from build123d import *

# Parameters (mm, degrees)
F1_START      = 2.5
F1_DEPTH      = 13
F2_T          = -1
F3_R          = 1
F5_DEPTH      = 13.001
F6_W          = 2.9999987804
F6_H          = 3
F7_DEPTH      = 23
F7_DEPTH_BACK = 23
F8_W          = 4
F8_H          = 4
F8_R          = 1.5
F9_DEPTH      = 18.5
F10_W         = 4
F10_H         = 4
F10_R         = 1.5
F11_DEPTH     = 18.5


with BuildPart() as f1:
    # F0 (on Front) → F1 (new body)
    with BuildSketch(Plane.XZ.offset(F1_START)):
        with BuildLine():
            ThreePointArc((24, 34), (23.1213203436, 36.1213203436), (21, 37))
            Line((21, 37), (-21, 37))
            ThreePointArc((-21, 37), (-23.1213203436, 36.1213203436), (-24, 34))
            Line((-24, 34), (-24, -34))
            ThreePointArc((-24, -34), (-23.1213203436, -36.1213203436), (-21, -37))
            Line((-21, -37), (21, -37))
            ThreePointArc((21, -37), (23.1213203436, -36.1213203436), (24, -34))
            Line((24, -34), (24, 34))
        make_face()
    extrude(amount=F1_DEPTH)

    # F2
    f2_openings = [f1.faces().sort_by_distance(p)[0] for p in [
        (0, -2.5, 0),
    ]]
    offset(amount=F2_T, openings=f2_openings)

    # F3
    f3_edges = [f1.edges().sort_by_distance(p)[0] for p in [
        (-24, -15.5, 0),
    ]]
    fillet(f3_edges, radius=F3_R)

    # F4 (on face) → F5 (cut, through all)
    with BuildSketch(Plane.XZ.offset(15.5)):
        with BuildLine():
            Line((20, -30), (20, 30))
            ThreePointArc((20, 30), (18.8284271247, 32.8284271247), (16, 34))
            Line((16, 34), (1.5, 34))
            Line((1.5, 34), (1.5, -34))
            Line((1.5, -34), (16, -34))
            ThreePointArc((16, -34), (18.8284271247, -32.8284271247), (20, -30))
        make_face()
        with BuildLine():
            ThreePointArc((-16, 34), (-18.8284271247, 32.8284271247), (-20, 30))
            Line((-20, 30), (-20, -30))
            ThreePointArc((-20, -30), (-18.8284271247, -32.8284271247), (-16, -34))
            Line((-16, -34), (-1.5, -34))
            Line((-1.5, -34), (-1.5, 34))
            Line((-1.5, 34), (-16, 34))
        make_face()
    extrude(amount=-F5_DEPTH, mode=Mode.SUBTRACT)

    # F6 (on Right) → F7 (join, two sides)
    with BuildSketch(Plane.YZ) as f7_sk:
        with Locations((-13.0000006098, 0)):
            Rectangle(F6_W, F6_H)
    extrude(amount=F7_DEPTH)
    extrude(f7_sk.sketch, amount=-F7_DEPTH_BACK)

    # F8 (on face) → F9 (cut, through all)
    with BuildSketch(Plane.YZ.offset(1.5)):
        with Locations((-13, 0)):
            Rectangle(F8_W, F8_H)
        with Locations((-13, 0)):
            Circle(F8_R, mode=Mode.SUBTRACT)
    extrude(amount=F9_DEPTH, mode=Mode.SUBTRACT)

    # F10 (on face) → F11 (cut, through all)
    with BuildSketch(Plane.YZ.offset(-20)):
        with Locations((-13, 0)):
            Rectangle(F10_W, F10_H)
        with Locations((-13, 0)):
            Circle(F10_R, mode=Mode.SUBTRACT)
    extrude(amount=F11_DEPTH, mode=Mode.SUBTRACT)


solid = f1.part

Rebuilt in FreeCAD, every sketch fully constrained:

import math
import FreeCAD as App
import Part
import Sketcher


def edges_at(feature, points):
    """Names of the edges that pass closest to the given points."""
    edges = feature.Shape.Edges
    near = lambda p: min(range(len(edges)), key=lambda i: edges[i].distToShape(Part.Vertex(*p))[0])
    return sorted({f"Edge{near(p) + 1}" for p in points})


def faces_at(feature, points):
    """Names of the faces that lie closest to the given points."""
    faces = feature.Shape.Faces
    near = lambda p: min(range(len(faces)), key=lambda i: faces[i].distToShape(Part.Vertex(*p))[0])
    return sorted({f"Face{near(p) + 1}" for p in points})

doc = App.newDocument("Part")
body = doc.addObject("PartDesign::Body", "Body")

# Sketch on XZ plane
sketch1 = body.newObject("Sketcher::SketchObject", "Sketch")
sketch1.AttachmentSupport = (doc.getObject("XZ_Plane"), [""])
sketch1.MapMode = "FlatFace"
sketch1.AttachmentOffset = App.Placement(App.Vector(0, 0, 2.5), App.Rotation())
sketch1.addGeometry([
    Part.ArcOfCircle(Part.Circle(App.Vector(21, 34, 0), App.Vector(0, 0, 1), 3), math.radians(0), math.radians(90)),  # 0
    Part.LineSegment(App.Vector(21, 37, 0), App.Vector(-21, 37, 0)),  # 1
    Part.ArcOfCircle(Part.Circle(App.Vector(-21, 34, 0), App.Vector(0, 0, 1), 3), math.radians(90), math.radians(180)),  # 2
    Part.LineSegment(App.Vector(-24, 34, 0), App.Vector(-24, -34, 0)),  # 3
    Part.ArcOfCircle(Part.Circle(App.Vector(-21, -34, 0), App.Vector(0, 0, 1), 3), math.radians(180), math.radians(270)),  # 4
    Part.LineSegment(App.Vector(-21, -37, 0), App.Vector(21, -37, 0)),  # 5
    Part.ArcOfCircle(Part.Circle(App.Vector(21, -34, 0), App.Vector(0, 0, 1), 3), math.radians(-90), math.radians(0)),  # 6
    Part.LineSegment(App.Vector(24, -34, 0), App.Vector(24, 34, 0)),  # 7
], False)
sketch1.addConstraint([
    Sketcher.Constraint("Tangent", 0, 2, 1, 1),
    Sketcher.Constraint("Tangent", 1, 2, 2, 1),
    Sketcher.Constraint("Tangent", 2, 2, 3, 1),
    Sketcher.Constraint("Tangent", 3, 2, 4, 1),
    Sketcher.Constraint("Tangent", 4, 2, 5, 1),
    Sketcher.Constraint("Tangent", 5, 2, 6, 1),
    Sketcher.Constraint("Tangent", 6, 2, 7, 1),
    Sketcher.Constraint("Tangent", 7, 2, 0, 1),
    Sketcher.Constraint("Horizontal", 1),
    Sketcher.Constraint("Vertical", 3),
    Sketcher.Constraint("Horizontal", 5),
    Sketcher.Constraint("Vertical", 7),
    Sketcher.Constraint("Equal", 0, 2),
    Sketcher.Constraint("Equal", 2, 4),
    Sketcher.Constraint("Equal", 4, 6),
    Sketcher.Constraint("Symmetric", 0, 3, 4, 3, -1, 1),
    Sketcher.Constraint("Radius", 0, 3.0),
    Sketcher.Constraint("DistanceX", 1, 2, 1, 1, 42.0),
    Sketcher.Constraint("DistanceY", 3, 2, 3, 1, 68.0),
])
pad1 = body.newObject("PartDesign::Pad", "Pad")
pad1.Profile = sketch1
pad1.Length = 13
doc.recompute()

thickness = body.newObject("PartDesign::Thickness", "Thickness")
thickness.Base = (pad1, faces_at(pad1, [(0, -2.5, 0)]))
thickness.Value = 1
thickness.Reversed = True
thickness.Join = "Arc"
doc.recompute()

fillet = body.newObject("PartDesign::Fillet", "Fillet")
fillet.Base = (thickness, edges_at(thickness, [(-24, -15.5, 0)]))
fillet.Radius = 1

# Sketch on XZ plane
sketch2 = body.newObject("Sketcher::SketchObject", "Sketch001")
sketch2.AttachmentSupport = (doc.getObject("XZ_Plane"), [""])
sketch2.MapMode = "FlatFace"
sketch2.AttachmentOffset = App.Placement(App.Vector(0, 0, 15.5), App.Rotation())
sketch2.addGeometry([
    Part.LineSegment(App.Vector(20, -30, 0), App.Vector(20, 30, 0)),  # 0
    Part.ArcOfCircle(Part.Circle(App.Vector(16, 30, 0), App.Vector(0, 0, 1), 4), math.radians(0), math.radians(90)),  # 1
    Part.LineSegment(App.Vector(16, 34, 0), App.Vector(1.5, 34, 0)),  # 2
    Part.LineSegment(App.Vector(1.5, 34, 0), App.Vector(1.5, -34, 0)),  # 3
    Part.LineSegment(App.Vector(1.5, -34, 0), App.Vector(16, -34, 0)),  # 4
    Part.ArcOfCircle(Part.Circle(App.Vector(16, -30, 0), App.Vector(0, 0, 1), 4), math.radians(-90), math.radians(0)),  # 5
    Part.ArcOfCircle(Part.Circle(App.Vector(-16, 30, 0), App.Vector(0, 0, 1), 4), math.radians(90), math.radians(180)),  # 6
    Part.LineSegment(App.Vector(-20, 30, 0), App.Vector(-20, -30, 0)),  # 7
    Part.ArcOfCircle(Part.Circle(App.Vector(-16, -30, 0), App.Vector(0, 0, 1), 4), math.radians(180), math.radians(270)),  # 8
    Part.LineSegment(App.Vector(-16, -34, 0), App.Vector(-1.5, -34, 0)),  # 9
    Part.LineSegment(App.Vector(-1.5, -34, 0), App.Vector(-1.5, 34, 0)),  # 10
    Part.LineSegment(App.Vector(-1.5, 34, 0), App.Vector(-16, 34, 0)),  # 11
], False)
sketch2.addConstraint([
    Sketcher.Constraint("Tangent", 0, 2, 1, 1),
    Sketcher.Constraint("Tangent", 1, 2, 2, 1),
    Sketcher.Constraint("Coincident", 2, 2, 3, 1),
    Sketcher.Constraint("Coincident", 3, 2, 4, 1),
    Sketcher.Constraint("Tangent", 4, 2, 5, 1),
    Sketcher.Constraint("Tangent", 5, 2, 0, 1),
    Sketcher.Constraint("Tangent", 6, 2, 7, 1),
    Sketcher.Constraint("Tangent", 7, 2, 8, 1),
    Sketcher.Constraint("Tangent", 8, 2, 9, 1),
    Sketcher.Constraint("Coincident", 9, 2, 10, 1),
    Sketcher.Constraint("Coincident", 10, 2, 11, 1),
    Sketcher.Constraint("Tangent", 11, 2, 6, 1),
    Sketcher.Constraint("Vertical", 0),
    Sketcher.Constraint("Horizontal", 2),
    Sketcher.Constraint("Vertical", 3),
    Sketcher.Constraint("Horizontal", 4),
    Sketcher.Constraint("Vertical", 7),
    Sketcher.Constraint("Horizontal", 9),
    Sketcher.Constraint("Vertical", 10),
    Sketcher.Constraint("Horizontal", 11),
    Sketcher.Constraint("Equal", 1, 5),
    Sketcher.Constraint("Equal", 5, 6),
    Sketcher.Constraint("Equal", 6, 8),
    Sketcher.Constraint("Symmetric", 5, 3, 6, 3, -1, 1),
    Sketcher.Constraint("Symmetric", 2, 2, 9, 2, -1, 1),
    Sketcher.Constraint("Horizontal", 1, 3, 6, 3),
    Sketcher.Constraint("Radius", 1, 4.0),
    Sketcher.Constraint("DistanceY", 0, 1, 0, 2, 60.0),
    Sketcher.Constraint("DistanceX", 2, 2, 2, 1, 14.5),
    Sketcher.Constraint("DistanceX", -1, 1, 1, 3, 16.0),
])
pocket1 = body.newObject("PartDesign::Pocket", "Pocket")
pocket1.Profile = sketch2
pocket1.Type = "ThroughAll"

# Sketch on YZ plane
sketch3 = body.newObject("Sketcher::SketchObject", "Sketch002")
sketch3.AttachmentSupport = (doc.getObject("YZ_Plane"), [""])
sketch3.MapMode = "FlatFace"
sketch3.addGeometry([
    Part.LineSegment(App.Vector(-14.5, 1.5, 0), App.Vector(-14.5, -1.5, 0)),
    Part.LineSegment(App.Vector(-14.5, -1.5, 0), App.Vector(-11.500001, -1.5, 0)),
    Part.LineSegment(App.Vector(-11.500001, -1.5, 0), App.Vector(-11.500001, 1.5, 0)),
    Part.LineSegment(App.Vector(-11.500001, 1.5, 0), App.Vector(-14.5, 1.5, 0)),
], False)
sketch3.addConstraint([
    Sketcher.Constraint("Coincident", 0, 2, 1, 1),
    Sketcher.Constraint("Coincident", 1, 2, 2, 1),
    Sketcher.Constraint("Coincident", 2, 2, 3, 1),
    Sketcher.Constraint("Coincident", 3, 2, 0, 1),
    Sketcher.Constraint("Vertical", 0),
    Sketcher.Constraint("Horizontal", 1),
    Sketcher.Constraint("Vertical", 2),
    Sketcher.Constraint("Horizontal", 3),
    Sketcher.Constraint("Equal", 3, 0),
    Sketcher.Constraint("DistanceX", 1, 1, 1, 2, 2.999999),
    Sketcher.Constraint("DistanceX", 0, 2, -1, 1, 14.5),
    Sketcher.Constraint("DistanceY", 0, 2, -1, 1, 1.5),
])
pad2 = body.newObject("PartDesign::Pad", "Pad001")
pad2.Profile = sketch3
pad2.Type = "TwoLengths"
pad2.Length = 23
pad2.Length2 = 23

# Sketch on YZ plane
sketch4 = body.newObject("Sketcher::SketchObject", "Sketch003")
sketch4.AttachmentSupport = (doc.getObject("YZ_Plane"), [""])
sketch4.MapMode = "FlatFace"
sketch4.AttachmentOffset = App.Placement(App.Vector(0, 0, 1.5), App.Rotation())
sketch4.addGeometry([
    Part.LineSegment(App.Vector(-15, 2, 0), App.Vector(-15, -2, 0)),  # 0
    Part.LineSegment(App.Vector(-15, -2, 0), App.Vector(-11, -2, 0)),  # 1
    Part.LineSegment(App.Vector(-11, -2, 0), App.Vector(-11, 2, 0)),  # 2
    Part.LineSegment(App.Vector(-11, 2, 0), App.Vector(-15, 2, 0)),  # 3
    Part.Circle(App.Vector(-13, 0, 0), App.Vector(0, 0, 1), 1.5),  # 4
], False)
sketch4.addConstraint([
    Sketcher.Constraint("Coincident", 0, 2, 1, 1),
    Sketcher.Constraint("Coincident", 1, 2, 2, 1),
    Sketcher.Constraint("Coincident", 2, 2, 3, 1),
    Sketcher.Constraint("Coincident", 3, 2, 0, 1),
    Sketcher.Constraint("Vertical", 0),
    Sketcher.Constraint("Horizontal", 1),
    Sketcher.Constraint("Vertical", 2),
    Sketcher.Constraint("Horizontal", 3),
    Sketcher.Constraint("PointOnObject", 4, 3, -1),
    Sketcher.Constraint("Equal", 3, 0),
    Sketcher.Constraint("Diameter", 4, 3.0),
    Sketcher.Constraint("DistanceX", 1, 1, 1, 2, 4.0),
    Sketcher.Constraint("DistanceX", 4, 3, -1, 1, 13.0),
    Sketcher.Constraint("DistanceX", 0, 2, -1, 1, 15.0),
    Sketcher.Constraint("DistanceY", 0, 2, -1, 1, 2.0),
])
pocket2 = body.newObject("PartDesign::Pocket", "Pocket001")
pocket2.Profile = sketch4
pocket2.Length = 18.5
pocket2.Reversed = True

# Sketch on YZ plane
sketch5 = body.newObject("Sketcher::SketchObject", "Sketch004")
sketch5.AttachmentSupport = (doc.getObject("YZ_Plane"), [""])
sketch5.MapMode = "FlatFace"
sketch5.AttachmentOffset = App.Placement(App.Vector(0, 0, -20), App.Rotation())
sketch5.addGeometry([
    Part.LineSegment(App.Vector(-15, 2, 0), App.Vector(-15, -2, 0)),  # 0
    Part.LineSegment(App.Vector(-15, -2, 0), App.Vector(-11, -2, 0)),  # 1
    Part.LineSegment(App.Vector(-11, -2, 0), App.Vector(-11, 2, 0)),  # 2
    Part.LineSegment(App.Vector(-11, 2, 0), App.Vector(-15, 2, 0)),  # 3
    Part.Circle(App.Vector(-13, 0, 0), App.Vector(0, 0, 1), 1.5),  # 4
], False)
sketch5.addConstraint([
    Sketcher.Constraint("Coincident", 0, 2, 1, 1),
    Sketcher.Constraint("Coincident", 1, 2, 2, 1),
    Sketcher.Constraint("Coincident", 2, 2, 3, 1),
    Sketcher.Constraint("Coincident", 3, 2, 0, 1),
    Sketcher.Constraint("Vertical", 0),
    Sketcher.Constraint("Horizontal", 1),
    Sketcher.Constraint("Vertical", 2),
    Sketcher.Constraint("Horizontal", 3),
    Sketcher.Constraint("PointOnObject", 4, 3, -1),
    Sketcher.Constraint("Equal", 3, 0),
    Sketcher.Constraint("Diameter", 4, 3.0),
    Sketcher.Constraint("DistanceX", 1, 1, 1, 2, 4.0),
    Sketcher.Constraint("DistanceX", 4, 3, -1, 1, 13.0),
    Sketcher.Constraint("DistanceX", 0, 2, -1, 1, 15.0),
    Sketcher.Constraint("DistanceY", 0, 2, -1, 1, 2.0),
])
pocket3 = body.newObject("PartDesign::Pocket", "Pocket002")
pocket3.Profile = sketch5
pocket3.Length = 18.5
pocket3.Reversed = True

doc.recompute()
